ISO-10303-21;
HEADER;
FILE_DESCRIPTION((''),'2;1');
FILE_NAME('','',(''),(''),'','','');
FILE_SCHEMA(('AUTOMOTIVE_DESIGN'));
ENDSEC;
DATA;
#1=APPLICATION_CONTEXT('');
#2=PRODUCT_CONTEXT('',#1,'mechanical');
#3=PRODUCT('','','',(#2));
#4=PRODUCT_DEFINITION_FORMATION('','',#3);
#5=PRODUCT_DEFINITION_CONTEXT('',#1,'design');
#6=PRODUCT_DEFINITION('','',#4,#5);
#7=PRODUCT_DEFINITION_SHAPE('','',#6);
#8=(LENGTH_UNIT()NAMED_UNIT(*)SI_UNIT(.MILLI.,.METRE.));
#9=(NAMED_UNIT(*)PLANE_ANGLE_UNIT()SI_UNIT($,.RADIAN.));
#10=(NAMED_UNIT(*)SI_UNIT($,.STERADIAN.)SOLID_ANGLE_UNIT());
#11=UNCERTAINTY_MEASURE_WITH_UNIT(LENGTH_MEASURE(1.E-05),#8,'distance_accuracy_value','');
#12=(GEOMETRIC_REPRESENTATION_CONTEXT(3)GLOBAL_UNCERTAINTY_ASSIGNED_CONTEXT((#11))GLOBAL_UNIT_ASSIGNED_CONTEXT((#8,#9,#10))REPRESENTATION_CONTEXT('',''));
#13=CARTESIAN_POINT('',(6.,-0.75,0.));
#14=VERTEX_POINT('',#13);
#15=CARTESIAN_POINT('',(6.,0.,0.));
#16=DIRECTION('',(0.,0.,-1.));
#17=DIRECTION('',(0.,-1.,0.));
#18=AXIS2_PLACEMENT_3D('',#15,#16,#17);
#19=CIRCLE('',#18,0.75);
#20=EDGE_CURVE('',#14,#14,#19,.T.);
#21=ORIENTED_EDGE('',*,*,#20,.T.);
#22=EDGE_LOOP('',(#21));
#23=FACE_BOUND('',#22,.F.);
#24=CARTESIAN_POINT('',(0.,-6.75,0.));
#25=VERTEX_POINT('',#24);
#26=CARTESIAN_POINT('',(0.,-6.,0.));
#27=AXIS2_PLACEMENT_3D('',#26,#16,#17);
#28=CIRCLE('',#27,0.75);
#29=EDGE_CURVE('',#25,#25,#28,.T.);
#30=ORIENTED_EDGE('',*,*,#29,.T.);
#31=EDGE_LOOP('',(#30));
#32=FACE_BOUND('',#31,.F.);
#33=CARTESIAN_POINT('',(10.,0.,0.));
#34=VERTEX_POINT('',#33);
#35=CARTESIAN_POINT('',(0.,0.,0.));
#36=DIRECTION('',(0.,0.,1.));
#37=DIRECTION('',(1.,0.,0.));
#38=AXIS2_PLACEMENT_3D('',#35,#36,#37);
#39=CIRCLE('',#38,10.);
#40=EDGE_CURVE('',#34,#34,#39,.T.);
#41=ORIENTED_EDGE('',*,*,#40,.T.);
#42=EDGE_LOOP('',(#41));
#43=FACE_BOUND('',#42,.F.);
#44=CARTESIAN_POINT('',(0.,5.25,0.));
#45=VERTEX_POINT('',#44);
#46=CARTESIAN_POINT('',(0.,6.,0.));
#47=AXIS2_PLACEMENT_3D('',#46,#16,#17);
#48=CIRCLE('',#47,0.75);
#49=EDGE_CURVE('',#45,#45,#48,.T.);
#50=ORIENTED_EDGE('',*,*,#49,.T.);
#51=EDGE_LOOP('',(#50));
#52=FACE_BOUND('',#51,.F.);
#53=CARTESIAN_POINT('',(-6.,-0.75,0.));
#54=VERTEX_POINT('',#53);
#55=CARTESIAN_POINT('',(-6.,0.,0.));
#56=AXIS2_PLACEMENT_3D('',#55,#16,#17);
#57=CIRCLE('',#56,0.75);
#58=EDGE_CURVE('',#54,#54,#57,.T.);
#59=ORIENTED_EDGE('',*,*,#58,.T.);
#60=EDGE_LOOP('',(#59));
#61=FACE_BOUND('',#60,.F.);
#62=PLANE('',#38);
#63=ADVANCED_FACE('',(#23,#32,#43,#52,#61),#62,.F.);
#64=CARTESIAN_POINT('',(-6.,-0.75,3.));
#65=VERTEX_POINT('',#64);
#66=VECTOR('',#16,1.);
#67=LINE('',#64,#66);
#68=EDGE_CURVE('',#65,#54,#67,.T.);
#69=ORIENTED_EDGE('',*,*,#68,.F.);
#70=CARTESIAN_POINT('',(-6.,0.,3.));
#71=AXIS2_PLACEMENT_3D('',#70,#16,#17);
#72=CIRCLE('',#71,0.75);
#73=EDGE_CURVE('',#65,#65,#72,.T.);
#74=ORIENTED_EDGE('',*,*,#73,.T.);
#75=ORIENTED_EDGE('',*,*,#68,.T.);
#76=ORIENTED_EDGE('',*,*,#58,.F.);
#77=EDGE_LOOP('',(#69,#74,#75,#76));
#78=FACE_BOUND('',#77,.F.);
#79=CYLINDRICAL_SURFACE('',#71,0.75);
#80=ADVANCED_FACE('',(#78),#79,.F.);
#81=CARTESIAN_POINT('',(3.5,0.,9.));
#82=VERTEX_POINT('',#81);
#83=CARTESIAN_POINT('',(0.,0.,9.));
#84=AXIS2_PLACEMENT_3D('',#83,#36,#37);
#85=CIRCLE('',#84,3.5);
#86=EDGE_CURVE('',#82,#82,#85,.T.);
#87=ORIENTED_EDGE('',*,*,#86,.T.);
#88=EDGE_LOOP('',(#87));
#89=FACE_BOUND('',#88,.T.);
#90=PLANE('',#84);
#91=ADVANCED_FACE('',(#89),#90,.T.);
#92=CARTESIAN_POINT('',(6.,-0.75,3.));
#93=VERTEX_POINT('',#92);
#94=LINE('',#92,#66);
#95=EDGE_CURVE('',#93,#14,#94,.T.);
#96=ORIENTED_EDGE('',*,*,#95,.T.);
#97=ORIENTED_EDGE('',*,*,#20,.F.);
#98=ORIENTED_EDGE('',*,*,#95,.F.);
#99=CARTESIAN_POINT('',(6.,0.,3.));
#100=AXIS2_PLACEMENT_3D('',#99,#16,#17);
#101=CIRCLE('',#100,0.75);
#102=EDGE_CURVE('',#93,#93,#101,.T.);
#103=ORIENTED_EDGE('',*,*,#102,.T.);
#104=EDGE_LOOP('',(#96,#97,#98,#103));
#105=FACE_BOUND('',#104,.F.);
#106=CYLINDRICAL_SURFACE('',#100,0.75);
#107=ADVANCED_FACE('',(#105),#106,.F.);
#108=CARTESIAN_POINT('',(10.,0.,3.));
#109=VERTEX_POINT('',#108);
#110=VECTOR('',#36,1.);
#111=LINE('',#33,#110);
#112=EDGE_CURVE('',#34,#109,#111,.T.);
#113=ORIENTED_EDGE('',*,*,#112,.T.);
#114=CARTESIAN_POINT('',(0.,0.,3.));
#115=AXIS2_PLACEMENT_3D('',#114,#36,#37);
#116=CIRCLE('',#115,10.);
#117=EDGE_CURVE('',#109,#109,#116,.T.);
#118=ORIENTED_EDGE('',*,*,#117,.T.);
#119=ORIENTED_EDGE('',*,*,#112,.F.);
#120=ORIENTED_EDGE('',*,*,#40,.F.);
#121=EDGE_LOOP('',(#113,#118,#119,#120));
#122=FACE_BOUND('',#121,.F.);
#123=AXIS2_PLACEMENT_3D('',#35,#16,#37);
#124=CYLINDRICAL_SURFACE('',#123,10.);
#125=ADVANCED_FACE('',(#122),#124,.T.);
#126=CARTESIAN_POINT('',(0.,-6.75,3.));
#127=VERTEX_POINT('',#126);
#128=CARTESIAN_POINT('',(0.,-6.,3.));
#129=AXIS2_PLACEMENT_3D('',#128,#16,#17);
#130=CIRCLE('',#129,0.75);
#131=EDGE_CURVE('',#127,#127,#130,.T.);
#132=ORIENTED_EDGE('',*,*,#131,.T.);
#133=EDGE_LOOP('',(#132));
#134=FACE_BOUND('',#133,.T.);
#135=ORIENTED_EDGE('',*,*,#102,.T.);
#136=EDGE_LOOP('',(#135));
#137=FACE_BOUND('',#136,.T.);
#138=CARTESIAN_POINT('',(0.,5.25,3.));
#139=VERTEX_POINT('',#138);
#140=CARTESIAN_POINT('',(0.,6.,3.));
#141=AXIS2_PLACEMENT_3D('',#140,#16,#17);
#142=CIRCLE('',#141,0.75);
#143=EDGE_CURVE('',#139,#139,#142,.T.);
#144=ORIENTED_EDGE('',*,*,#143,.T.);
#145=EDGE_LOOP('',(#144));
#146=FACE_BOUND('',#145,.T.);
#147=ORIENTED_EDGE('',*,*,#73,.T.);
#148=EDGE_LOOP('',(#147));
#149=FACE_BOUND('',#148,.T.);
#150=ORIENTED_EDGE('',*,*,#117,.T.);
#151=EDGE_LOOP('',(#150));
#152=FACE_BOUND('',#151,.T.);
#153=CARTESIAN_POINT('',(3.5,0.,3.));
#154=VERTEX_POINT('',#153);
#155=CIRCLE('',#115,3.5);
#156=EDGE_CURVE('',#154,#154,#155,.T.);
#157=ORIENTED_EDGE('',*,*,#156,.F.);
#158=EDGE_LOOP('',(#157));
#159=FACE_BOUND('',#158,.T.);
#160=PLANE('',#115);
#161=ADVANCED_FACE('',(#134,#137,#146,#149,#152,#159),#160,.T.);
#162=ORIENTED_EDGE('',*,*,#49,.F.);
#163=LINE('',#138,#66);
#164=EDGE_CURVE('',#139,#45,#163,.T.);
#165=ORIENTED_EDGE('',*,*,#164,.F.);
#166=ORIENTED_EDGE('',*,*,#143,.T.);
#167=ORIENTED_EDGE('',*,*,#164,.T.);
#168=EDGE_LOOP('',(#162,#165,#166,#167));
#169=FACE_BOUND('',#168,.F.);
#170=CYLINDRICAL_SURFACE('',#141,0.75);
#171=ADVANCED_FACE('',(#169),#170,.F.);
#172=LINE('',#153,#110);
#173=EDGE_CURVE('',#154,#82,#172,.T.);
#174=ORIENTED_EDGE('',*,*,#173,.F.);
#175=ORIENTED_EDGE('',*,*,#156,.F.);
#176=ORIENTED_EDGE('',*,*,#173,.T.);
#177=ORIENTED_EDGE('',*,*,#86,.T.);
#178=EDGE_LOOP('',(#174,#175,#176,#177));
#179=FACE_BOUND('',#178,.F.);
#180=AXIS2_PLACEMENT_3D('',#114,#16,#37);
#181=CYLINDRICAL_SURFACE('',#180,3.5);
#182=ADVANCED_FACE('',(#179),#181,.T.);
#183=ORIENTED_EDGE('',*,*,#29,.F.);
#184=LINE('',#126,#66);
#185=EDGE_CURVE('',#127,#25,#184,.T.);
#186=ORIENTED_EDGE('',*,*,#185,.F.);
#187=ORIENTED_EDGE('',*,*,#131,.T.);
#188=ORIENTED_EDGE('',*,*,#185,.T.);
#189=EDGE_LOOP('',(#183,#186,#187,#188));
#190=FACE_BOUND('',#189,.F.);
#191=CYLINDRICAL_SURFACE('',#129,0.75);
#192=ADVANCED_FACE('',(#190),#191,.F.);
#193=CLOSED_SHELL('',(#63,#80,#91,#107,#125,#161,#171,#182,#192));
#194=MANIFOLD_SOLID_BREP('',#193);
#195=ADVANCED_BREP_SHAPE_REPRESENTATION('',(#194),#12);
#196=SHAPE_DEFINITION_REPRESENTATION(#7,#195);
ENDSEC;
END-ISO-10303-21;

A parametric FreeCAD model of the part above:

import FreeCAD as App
import Part
import Sketcher

doc = App.newDocument("Part")
body = doc.addObject("PartDesign::Body", "Body")

# Sketch on XY plane
sketch1 = doc.addObject("Sketcher::SketchObject", "Sketch")
body.addObject(sketch1)
sketch1.AttachmentSupport = (doc.XY_Plane, [""])
sketch1.MapMode = "FlatFace"
sketch1.addGeometry(Part.Circle(App.Vector(0, 0, 0), App.Vector(0, 0, 1), 10), False)
sketch1.addConstraint(Sketcher.Constraint("Coincident", 0, 3, -1, 1))
sketch1.addConstraint(Sketcher.Constraint("Diameter", 0, 20.0))
pad1 = doc.addObject("PartDesign::Pad", "Pad")
body.addObject(pad1)
pad1.Profile = sketch1
pad1.Length = 3

# Sketch on XY plane
sketch2 = doc.addObject("Sketcher::SketchObject", "Sketch001")
body.addObject(sketch2)
sketch2.AttachmentSupport = (doc.XY_Plane, [""])
sketch2.MapMode = "FlatFace"
sketch2.AttachmentOffset = App.Placement(App.Vector(0, 0, 3), App.Rotation())
sketch2.addGeometry(Part.Circle(App.Vector(0, 6, 0), App.Vector(0, 0, 1), 0.8), False)
sketch2.addGeometry(Part.Circle(App.Vector(-6, 0, 0), App.Vector(0, 0, 1), 0.8), False)
sketch2.addGeometry(Part.Circle(App.Vector(0, -6, 0), App.Vector(0, 0, 1), 0.8), False)
sketch2.addGeometry(Part.Circle(App.Vector(6, 0, 0), App.Vector(0, 0, 1), 0.8), False)
sketch2.addConstraint(Sketcher.Constraint("Equal", 0, 1))
sketch2.addConstraint(Sketcher.Constraint("Equal", 1, 2))
sketch2.addConstraint(Sketcher.Constraint("Equal", 2, 3))
sketch2.addConstraint(Sketcher.Constraint("Symmetric", 0, 3, 2, 3, -1, 1))
sketch2.addConstraint(Sketcher.Constraint("Symmetric", 1, 3, 3, 3, -1, 1))
sketch2.addConstraint(Sketcher.Constraint("PointOnObject", 0, 3, -2))
sketch2.addConstraint(Sketcher.Constraint("PointOnObject", 1, 3, -1))
sketch2.addConstraint(Sketcher.Constraint("Diameter", 0, 1.5))
sketch2.addConstraint(Sketcher.Constraint("DistanceY", -1, 1, 0, 3, 6.0))
sketch2.addConstraint(Sketcher.Constraint("DistanceX", 1, 3, -1, 1, 6.0))
doc.recompute()
hole = doc.addObject("PartDesign::Hole", "Hole")
body.addObject(hole)
hole.Profile = sketch2
hole.ThreadType = "None"
hole.Diameter = 1.5
hole.DepthType = "ThroughAll"

# Sketch on XY plane
sketch3 = doc.addObject("Sketcher::SketchObject", "Sketch002")
body.addObject(sketch3)
sketch3.AttachmentSupport = (doc.XY_Plane, [""])
sketch3.MapMode = "FlatFace"
sketch3.AttachmentOffset = App.Placement(App.Vector(0, 0, 3), App.Rotation())
sketch3.addGeometry(Part.Circle(App.Vector(0, 0, 0), App.Vector(0, 0, 1), 3.5), False)
sketch3.addConstraint(Sketcher.Constraint("Coincident", 0, 3, -1, 1))
sketch3.addConstraint(Sketcher.Constraint("Diameter", 0, 7.0))
pad2 = doc.addObject("PartDesign::Pad", "Pad001")
body.addObject(pad2)
pad2.Profile = sketch3
pad2.Length = 6

doc.recompute()
